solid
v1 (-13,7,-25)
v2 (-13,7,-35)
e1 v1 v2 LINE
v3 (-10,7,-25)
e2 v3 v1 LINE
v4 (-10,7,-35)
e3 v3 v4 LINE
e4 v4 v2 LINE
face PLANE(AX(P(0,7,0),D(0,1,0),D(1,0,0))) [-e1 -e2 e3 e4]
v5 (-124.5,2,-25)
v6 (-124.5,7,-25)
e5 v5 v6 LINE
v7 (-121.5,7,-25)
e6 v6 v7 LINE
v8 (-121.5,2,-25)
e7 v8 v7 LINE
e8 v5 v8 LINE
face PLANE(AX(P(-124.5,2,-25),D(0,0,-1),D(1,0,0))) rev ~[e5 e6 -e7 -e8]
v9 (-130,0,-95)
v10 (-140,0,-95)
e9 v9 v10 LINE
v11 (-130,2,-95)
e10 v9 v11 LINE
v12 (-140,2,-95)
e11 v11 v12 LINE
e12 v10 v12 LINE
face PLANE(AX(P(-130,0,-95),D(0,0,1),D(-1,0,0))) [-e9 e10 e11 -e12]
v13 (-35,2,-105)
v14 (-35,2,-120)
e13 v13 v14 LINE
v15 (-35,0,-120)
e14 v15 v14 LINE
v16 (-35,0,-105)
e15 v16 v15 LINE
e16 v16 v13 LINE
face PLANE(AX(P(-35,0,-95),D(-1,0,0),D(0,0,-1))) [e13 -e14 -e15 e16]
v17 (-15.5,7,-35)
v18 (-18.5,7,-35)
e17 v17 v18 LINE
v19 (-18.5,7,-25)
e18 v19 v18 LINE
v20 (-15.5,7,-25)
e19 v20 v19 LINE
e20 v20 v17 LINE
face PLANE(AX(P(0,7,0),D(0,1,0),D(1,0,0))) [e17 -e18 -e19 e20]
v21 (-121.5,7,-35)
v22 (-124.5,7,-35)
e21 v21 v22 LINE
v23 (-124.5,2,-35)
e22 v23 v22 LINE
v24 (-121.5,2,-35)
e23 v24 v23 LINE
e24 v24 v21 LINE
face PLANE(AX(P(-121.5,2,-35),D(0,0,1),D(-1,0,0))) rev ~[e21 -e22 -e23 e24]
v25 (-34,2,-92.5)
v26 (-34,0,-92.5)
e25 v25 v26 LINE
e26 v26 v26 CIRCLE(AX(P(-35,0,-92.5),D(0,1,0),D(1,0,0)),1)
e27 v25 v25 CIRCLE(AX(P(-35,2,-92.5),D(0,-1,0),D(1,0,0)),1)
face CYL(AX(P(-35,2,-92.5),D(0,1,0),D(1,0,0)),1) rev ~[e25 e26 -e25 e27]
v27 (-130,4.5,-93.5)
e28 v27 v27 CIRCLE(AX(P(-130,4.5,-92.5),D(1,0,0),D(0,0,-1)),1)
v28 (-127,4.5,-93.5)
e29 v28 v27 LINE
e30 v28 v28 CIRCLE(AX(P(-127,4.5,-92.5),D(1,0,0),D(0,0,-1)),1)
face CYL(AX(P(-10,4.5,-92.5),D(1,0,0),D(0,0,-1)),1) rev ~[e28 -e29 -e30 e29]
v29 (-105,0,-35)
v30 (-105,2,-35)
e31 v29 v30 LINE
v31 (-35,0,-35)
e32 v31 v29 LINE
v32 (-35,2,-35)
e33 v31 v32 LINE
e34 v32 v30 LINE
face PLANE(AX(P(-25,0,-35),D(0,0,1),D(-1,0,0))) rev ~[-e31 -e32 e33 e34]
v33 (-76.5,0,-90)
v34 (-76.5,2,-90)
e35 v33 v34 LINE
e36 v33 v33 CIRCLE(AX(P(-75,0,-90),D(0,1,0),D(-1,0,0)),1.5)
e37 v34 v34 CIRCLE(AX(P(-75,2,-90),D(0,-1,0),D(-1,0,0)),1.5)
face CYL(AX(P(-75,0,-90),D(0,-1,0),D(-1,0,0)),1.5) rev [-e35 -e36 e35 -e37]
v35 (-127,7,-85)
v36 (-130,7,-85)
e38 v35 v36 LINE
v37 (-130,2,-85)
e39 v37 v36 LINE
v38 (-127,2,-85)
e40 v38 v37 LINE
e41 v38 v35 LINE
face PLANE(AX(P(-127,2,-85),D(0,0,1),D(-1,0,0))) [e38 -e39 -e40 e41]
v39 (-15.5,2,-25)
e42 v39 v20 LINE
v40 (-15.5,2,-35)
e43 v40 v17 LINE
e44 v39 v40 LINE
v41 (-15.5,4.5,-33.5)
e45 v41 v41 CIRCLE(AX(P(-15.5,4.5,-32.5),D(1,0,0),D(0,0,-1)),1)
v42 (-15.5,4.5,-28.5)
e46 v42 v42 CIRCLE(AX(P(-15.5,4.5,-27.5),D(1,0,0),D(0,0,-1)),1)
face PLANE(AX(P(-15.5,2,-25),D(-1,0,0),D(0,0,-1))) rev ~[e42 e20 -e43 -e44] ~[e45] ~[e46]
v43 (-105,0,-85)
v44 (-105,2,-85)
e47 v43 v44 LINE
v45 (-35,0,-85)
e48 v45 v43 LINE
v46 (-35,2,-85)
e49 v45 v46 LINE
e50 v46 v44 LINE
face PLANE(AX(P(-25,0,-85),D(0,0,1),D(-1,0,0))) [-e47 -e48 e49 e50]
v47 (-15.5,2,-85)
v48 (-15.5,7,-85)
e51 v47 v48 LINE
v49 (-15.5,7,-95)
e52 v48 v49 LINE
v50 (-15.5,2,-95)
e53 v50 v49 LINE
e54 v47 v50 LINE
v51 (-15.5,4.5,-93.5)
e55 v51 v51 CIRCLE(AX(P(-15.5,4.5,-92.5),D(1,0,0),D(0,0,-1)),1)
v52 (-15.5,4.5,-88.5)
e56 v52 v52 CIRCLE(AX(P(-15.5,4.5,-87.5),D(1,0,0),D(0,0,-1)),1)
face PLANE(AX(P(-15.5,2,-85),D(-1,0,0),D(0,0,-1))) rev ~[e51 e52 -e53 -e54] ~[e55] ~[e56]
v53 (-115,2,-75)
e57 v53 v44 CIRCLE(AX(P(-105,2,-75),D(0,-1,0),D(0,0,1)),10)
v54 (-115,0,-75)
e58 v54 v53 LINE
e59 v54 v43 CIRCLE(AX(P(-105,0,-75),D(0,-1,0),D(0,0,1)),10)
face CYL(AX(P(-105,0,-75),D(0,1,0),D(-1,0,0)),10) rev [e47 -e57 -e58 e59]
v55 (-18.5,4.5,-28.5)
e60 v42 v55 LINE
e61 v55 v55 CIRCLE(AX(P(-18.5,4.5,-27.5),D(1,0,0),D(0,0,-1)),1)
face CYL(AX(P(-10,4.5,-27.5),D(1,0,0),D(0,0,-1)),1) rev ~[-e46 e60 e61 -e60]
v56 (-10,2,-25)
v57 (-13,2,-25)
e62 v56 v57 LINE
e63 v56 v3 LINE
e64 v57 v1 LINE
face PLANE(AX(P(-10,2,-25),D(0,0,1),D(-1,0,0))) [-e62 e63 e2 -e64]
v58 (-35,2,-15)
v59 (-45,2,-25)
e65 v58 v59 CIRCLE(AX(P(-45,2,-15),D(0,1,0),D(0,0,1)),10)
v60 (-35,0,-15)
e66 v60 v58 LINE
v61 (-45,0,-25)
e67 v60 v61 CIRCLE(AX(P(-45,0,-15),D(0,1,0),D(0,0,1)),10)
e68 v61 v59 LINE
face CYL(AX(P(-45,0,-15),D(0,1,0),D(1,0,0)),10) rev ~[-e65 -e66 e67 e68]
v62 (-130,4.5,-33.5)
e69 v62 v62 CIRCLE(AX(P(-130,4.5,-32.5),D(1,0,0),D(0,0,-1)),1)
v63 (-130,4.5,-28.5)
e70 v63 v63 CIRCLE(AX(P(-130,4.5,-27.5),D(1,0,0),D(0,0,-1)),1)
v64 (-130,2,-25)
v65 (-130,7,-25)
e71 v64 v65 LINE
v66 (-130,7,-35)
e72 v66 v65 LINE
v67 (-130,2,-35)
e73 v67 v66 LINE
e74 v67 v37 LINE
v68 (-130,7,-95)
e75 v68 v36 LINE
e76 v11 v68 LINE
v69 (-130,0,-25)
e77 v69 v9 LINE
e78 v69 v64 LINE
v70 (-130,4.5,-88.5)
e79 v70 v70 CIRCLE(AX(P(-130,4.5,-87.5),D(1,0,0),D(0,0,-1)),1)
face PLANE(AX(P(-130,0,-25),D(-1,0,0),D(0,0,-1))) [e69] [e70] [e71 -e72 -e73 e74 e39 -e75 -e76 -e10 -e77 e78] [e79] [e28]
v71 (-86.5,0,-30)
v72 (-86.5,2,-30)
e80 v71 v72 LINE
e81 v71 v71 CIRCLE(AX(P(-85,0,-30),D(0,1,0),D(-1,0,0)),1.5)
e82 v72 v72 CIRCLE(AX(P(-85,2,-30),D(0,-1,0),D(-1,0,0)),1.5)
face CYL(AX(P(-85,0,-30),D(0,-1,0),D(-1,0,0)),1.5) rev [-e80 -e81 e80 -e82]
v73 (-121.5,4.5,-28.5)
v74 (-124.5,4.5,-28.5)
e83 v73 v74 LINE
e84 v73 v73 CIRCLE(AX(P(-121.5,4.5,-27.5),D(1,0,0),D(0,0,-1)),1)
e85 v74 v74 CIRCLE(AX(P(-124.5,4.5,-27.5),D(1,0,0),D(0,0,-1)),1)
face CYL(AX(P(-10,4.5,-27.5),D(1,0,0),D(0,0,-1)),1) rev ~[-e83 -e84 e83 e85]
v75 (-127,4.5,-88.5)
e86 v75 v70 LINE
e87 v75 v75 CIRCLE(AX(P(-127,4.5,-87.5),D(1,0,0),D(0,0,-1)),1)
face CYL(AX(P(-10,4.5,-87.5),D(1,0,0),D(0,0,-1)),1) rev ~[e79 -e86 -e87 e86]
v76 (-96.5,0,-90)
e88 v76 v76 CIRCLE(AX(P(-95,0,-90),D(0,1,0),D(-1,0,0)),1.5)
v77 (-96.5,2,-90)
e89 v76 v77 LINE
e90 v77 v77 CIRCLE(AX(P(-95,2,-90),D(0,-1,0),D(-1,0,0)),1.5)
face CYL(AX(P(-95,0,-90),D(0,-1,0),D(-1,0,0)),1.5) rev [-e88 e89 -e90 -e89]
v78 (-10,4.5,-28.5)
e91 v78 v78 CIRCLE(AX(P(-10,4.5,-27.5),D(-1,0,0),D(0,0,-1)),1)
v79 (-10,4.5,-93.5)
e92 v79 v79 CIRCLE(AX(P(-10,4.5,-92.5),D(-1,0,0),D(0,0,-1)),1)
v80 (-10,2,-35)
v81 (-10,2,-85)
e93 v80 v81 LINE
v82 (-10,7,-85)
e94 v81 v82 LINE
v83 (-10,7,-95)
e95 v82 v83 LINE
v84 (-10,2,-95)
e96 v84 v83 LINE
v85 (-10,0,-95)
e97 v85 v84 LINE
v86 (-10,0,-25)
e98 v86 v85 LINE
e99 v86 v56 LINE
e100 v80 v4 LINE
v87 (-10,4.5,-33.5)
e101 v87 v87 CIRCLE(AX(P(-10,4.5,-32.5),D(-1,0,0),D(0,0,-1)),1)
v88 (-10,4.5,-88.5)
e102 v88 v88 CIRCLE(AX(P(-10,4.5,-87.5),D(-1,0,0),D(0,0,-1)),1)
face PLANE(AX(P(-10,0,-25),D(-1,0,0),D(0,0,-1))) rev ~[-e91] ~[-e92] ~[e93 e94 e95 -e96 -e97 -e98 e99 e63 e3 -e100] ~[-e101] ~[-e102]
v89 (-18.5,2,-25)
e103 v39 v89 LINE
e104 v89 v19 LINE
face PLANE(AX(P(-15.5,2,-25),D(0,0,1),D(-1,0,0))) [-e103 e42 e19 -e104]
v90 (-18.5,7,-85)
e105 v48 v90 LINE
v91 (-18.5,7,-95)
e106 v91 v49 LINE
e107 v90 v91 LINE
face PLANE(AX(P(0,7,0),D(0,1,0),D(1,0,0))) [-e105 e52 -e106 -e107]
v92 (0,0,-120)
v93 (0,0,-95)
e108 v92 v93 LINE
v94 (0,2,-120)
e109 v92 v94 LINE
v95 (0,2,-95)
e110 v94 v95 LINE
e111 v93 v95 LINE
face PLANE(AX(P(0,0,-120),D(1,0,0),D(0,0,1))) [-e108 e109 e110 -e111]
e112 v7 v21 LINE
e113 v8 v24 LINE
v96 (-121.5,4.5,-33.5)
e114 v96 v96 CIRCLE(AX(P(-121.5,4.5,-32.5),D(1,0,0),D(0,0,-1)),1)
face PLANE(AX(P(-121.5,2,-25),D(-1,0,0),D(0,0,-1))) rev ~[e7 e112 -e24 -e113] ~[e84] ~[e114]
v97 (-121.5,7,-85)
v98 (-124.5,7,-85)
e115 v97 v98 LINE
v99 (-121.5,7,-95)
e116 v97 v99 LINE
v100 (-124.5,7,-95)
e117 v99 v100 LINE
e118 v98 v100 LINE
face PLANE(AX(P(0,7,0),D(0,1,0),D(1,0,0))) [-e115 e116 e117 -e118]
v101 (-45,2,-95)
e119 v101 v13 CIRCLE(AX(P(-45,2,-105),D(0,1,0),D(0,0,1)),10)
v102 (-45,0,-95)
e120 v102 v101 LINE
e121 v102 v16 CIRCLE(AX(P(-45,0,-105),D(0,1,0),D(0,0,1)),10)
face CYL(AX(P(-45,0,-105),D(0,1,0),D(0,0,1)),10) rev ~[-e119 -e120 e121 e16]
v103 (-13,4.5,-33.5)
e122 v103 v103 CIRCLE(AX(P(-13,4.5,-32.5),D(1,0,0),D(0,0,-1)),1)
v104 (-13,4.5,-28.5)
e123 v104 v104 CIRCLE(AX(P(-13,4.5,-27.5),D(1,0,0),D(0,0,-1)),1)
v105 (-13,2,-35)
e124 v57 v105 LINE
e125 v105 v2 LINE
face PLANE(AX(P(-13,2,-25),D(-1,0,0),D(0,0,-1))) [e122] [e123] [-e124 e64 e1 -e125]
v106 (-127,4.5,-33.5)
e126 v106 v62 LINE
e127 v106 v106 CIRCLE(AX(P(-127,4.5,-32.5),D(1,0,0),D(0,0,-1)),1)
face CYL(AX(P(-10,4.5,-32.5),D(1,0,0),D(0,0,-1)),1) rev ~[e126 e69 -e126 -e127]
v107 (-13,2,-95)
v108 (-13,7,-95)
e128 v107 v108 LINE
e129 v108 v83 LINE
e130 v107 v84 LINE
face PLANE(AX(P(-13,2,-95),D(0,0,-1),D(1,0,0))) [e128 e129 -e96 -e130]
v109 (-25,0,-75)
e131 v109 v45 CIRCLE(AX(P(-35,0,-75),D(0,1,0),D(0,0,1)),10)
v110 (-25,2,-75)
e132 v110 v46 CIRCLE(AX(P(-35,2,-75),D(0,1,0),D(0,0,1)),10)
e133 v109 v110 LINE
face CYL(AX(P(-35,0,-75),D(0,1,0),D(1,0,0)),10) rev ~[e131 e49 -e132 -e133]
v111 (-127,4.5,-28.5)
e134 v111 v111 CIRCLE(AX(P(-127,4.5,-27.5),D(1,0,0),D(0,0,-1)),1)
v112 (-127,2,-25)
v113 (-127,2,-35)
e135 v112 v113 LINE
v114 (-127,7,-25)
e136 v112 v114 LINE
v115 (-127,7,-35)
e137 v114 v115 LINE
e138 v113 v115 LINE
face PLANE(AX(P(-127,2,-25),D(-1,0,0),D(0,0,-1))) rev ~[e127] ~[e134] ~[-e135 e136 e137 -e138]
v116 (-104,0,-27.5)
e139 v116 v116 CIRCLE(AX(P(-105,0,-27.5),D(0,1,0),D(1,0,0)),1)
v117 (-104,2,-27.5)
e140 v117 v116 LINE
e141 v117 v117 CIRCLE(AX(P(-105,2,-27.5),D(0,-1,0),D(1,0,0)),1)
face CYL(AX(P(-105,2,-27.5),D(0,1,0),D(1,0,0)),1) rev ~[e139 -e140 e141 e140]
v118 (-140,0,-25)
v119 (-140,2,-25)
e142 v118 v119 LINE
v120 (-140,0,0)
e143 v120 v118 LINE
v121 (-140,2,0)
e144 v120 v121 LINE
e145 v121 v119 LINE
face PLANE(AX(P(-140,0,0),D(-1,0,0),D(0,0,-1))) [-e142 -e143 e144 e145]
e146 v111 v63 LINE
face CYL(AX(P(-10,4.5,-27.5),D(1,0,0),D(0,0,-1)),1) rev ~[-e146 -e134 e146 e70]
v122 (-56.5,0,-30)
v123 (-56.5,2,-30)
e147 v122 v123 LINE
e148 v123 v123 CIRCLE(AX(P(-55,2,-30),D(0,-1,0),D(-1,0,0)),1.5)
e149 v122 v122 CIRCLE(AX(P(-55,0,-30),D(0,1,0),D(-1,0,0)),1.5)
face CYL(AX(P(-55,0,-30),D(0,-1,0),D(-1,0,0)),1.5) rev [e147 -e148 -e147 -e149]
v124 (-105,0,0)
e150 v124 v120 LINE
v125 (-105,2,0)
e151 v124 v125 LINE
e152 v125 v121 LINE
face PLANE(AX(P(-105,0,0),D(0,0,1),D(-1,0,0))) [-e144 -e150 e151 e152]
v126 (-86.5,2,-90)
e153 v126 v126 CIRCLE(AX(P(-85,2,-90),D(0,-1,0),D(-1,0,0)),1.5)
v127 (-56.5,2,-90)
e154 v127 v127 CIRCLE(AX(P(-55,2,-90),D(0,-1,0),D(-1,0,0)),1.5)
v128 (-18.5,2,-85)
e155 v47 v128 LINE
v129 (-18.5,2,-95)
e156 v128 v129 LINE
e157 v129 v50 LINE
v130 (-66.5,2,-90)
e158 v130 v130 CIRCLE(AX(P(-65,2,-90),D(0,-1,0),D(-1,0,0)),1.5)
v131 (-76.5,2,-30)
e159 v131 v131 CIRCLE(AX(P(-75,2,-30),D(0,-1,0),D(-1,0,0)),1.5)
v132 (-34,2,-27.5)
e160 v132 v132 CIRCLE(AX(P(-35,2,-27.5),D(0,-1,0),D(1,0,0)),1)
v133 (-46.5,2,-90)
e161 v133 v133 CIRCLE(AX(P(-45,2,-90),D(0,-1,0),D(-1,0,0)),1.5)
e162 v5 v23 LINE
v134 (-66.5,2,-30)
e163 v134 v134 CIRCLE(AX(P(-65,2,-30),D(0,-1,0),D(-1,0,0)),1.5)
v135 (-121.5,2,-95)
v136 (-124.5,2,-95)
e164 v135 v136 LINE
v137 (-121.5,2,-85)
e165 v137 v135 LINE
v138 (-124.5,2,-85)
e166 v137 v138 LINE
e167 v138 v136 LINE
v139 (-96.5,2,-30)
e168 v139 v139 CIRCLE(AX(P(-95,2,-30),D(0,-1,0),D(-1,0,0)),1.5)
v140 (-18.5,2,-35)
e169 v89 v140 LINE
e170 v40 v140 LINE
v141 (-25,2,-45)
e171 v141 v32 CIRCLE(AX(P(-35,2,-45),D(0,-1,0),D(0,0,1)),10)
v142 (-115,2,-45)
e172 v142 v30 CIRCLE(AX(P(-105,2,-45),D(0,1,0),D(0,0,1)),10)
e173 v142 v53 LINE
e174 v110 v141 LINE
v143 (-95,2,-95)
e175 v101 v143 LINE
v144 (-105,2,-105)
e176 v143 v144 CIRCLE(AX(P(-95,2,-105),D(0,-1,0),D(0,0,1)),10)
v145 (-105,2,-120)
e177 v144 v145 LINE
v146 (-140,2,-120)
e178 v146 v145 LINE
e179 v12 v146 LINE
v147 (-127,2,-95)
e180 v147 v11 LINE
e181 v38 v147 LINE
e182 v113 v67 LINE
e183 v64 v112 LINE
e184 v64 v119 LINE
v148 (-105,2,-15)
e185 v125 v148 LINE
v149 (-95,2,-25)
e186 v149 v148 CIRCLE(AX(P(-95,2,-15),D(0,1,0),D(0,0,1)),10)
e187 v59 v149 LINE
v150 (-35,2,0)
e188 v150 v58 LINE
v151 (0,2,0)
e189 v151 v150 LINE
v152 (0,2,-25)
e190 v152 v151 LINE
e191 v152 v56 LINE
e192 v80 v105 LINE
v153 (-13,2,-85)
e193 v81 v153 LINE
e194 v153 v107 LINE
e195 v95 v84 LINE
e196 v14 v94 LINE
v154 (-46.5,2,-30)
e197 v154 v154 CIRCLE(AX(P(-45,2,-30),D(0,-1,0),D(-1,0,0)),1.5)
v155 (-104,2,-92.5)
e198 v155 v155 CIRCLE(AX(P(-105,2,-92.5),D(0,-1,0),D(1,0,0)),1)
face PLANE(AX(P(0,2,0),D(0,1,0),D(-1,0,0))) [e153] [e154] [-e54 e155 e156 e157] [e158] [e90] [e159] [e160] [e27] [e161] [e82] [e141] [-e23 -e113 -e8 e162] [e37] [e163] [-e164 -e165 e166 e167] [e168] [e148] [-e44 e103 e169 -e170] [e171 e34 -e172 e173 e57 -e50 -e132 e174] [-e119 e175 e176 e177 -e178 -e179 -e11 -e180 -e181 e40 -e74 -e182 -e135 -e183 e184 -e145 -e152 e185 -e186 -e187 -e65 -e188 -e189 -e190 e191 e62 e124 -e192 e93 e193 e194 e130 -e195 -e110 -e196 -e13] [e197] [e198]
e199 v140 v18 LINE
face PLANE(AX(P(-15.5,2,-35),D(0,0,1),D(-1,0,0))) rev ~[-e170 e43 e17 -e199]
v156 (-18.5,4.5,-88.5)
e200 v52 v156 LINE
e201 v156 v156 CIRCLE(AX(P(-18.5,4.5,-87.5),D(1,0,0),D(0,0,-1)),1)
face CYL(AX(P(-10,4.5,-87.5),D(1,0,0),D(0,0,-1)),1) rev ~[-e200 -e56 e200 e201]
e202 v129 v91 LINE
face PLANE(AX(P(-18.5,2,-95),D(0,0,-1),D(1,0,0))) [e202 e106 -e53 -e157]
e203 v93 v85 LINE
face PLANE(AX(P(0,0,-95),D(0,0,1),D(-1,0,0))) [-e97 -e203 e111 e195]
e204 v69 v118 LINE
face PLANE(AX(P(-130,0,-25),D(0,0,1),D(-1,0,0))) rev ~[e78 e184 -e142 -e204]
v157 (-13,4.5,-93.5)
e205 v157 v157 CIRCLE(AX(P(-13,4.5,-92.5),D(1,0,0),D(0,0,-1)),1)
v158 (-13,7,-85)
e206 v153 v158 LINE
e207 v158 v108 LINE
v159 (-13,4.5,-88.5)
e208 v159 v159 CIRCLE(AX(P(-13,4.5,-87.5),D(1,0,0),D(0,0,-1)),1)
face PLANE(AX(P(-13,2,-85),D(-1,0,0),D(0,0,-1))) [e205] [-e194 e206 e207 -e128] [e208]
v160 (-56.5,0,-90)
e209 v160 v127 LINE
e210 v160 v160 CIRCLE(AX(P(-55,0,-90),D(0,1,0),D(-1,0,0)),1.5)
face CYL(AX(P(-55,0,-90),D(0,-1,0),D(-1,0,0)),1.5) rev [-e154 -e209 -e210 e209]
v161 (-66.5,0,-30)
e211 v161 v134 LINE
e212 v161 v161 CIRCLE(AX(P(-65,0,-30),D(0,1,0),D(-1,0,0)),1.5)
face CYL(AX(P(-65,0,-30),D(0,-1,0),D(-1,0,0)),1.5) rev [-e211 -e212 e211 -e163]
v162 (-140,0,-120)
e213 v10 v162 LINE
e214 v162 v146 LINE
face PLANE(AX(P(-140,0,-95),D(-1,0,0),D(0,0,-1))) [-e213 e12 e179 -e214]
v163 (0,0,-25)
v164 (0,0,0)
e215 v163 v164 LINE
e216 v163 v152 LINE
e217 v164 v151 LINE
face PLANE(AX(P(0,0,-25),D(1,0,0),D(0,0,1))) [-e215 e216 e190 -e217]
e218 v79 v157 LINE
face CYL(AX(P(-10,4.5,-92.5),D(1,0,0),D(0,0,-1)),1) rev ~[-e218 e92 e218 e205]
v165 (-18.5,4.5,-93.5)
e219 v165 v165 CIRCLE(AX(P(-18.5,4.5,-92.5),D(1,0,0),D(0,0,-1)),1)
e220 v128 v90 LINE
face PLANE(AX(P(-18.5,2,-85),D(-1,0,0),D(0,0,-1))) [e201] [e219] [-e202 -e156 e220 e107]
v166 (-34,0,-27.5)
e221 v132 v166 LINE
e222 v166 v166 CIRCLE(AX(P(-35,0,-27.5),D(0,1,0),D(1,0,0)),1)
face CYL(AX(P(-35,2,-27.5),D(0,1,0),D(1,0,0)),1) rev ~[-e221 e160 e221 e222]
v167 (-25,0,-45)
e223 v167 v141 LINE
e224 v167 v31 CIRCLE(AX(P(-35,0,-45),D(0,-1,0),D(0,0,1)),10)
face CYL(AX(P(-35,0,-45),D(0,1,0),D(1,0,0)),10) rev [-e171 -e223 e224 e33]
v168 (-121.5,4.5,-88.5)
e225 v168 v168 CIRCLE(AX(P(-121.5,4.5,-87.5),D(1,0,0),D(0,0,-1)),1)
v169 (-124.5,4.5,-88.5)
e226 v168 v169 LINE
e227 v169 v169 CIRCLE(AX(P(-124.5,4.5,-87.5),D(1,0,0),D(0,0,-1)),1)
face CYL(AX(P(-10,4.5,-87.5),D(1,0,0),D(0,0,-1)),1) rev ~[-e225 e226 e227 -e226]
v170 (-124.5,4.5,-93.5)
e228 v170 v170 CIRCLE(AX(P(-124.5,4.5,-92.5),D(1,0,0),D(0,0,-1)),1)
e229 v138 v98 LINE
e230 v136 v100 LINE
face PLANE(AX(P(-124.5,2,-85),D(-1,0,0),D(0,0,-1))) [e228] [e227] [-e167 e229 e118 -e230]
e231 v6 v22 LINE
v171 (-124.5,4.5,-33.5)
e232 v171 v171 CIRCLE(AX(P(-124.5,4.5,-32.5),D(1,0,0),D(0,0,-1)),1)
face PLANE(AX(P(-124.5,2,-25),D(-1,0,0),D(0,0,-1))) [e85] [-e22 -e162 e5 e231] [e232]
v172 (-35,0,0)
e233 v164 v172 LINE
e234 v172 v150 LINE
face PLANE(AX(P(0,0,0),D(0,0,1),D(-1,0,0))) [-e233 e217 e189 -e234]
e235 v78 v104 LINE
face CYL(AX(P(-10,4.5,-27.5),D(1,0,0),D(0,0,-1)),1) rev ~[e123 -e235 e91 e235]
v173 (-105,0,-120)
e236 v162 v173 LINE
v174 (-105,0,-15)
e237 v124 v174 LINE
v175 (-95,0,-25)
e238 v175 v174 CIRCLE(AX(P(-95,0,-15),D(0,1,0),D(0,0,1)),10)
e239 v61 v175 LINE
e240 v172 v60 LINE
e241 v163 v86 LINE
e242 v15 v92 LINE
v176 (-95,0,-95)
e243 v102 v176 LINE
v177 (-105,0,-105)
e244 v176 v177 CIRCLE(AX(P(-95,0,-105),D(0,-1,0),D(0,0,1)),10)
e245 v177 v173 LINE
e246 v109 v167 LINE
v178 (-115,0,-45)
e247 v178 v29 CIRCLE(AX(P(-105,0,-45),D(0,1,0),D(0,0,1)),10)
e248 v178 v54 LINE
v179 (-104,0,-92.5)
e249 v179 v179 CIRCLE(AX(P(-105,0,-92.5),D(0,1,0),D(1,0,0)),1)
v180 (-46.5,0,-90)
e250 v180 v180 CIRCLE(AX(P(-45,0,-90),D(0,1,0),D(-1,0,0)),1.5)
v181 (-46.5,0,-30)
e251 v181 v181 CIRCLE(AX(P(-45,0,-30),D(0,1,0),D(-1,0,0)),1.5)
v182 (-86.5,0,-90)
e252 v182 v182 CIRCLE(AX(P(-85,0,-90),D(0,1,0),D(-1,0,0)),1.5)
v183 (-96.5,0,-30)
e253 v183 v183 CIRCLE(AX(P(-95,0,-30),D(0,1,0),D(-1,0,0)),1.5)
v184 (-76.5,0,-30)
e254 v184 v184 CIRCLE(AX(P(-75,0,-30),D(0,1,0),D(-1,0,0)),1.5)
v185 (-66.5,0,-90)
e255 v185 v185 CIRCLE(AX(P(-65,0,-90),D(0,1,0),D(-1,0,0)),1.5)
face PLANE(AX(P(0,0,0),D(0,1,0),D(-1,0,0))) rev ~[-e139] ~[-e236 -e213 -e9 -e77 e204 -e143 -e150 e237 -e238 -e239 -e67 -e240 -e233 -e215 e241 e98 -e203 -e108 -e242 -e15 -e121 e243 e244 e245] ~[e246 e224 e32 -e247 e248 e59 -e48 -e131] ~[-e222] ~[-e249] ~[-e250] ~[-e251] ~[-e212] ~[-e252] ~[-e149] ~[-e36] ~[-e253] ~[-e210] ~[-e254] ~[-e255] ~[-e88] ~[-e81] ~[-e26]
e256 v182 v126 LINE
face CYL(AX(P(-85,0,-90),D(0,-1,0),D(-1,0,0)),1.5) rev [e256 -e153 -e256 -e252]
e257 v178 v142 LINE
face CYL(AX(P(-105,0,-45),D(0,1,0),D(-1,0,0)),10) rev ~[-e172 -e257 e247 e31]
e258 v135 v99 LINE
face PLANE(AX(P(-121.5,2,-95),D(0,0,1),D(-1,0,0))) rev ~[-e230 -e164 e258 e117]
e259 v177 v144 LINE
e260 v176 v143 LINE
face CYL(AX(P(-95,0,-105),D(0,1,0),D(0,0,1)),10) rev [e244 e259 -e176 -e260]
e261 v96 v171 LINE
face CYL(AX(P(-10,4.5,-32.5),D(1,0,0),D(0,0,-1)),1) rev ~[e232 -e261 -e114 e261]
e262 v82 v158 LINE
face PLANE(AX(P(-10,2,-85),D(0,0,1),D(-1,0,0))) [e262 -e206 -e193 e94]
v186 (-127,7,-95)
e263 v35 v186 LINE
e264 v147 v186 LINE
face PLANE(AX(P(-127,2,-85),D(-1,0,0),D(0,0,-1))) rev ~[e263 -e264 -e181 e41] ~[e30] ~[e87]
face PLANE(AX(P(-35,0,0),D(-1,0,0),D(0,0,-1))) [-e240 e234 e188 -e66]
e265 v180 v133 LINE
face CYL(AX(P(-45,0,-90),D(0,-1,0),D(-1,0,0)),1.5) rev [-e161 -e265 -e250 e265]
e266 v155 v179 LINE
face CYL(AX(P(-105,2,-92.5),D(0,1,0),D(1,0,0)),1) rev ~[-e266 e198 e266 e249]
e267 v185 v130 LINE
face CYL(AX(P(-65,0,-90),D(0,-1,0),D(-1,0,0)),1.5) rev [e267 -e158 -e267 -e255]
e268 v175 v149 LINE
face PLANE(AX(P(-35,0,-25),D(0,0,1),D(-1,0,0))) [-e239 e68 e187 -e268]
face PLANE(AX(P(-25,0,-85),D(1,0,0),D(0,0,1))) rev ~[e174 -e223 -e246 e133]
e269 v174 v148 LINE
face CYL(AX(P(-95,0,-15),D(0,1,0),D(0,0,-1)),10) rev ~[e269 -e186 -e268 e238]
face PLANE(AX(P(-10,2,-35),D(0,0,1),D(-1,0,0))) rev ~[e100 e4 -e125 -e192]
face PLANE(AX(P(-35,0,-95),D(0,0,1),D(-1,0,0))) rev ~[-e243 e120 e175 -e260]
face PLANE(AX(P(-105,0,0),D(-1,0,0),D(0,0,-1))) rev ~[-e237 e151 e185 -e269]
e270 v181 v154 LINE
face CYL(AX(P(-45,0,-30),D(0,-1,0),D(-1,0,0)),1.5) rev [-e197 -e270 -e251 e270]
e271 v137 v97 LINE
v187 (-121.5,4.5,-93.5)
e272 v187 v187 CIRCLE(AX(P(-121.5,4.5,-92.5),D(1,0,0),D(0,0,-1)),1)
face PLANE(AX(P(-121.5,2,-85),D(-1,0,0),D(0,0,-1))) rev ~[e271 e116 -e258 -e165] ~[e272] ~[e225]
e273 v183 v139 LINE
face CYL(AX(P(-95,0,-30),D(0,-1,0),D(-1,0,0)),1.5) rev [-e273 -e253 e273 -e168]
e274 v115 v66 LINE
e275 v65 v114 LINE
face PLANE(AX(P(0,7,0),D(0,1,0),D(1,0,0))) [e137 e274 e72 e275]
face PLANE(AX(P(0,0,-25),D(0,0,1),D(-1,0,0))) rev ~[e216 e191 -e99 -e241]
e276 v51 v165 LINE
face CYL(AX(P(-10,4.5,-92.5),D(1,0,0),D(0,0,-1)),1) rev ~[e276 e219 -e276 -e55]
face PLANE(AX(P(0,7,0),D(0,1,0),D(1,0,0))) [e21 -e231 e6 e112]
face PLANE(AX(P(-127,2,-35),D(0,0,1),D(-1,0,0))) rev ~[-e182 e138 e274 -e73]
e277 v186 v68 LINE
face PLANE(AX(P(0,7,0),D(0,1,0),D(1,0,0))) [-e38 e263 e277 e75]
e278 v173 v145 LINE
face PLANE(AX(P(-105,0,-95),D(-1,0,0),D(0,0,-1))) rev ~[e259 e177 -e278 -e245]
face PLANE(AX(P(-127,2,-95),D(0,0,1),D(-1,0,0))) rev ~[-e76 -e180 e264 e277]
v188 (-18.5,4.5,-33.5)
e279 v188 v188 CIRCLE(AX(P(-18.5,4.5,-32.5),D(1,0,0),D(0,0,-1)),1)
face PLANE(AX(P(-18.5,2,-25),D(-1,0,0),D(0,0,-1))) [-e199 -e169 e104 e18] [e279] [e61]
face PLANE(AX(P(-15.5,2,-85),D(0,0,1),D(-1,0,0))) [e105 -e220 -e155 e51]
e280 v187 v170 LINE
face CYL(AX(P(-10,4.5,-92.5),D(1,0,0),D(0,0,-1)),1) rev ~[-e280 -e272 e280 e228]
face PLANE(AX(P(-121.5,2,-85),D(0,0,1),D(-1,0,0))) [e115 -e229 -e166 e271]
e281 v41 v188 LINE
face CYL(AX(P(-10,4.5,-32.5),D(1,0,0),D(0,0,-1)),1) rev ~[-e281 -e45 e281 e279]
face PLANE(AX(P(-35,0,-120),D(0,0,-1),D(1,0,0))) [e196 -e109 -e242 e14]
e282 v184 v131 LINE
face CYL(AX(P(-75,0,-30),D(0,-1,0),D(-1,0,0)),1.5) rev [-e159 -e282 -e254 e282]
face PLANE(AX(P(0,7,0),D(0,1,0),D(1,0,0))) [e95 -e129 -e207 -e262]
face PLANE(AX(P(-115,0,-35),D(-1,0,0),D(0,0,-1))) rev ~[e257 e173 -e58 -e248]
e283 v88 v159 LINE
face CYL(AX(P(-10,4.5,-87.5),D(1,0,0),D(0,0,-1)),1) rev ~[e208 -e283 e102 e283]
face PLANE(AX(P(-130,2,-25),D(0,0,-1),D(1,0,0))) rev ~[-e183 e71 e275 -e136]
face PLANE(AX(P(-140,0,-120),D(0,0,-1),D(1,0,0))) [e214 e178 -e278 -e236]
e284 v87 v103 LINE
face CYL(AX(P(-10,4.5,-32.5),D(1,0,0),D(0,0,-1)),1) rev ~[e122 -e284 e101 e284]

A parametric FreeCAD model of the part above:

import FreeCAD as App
import Part
import Sketcher
from FreeCAD import Vector


def edges_at(feature, points):
    """Names of the edges that pass closest to the given points."""
    edges = feature.Shape.Edges
    near = lambda p: min(range(len(edges)), key=lambda i: edges[i].distToShape(Part.Vertex(*p))[0])
    return sorted({f"Edge{near(p) + 1}" for p in points})

doc = App.newDocument("Part")
body = doc.addObject("PartDesign::Body", "Body")

# Sketch on XZ plane
sketch1 = body.newObject("Sketcher::SketchObject", "Sketch")
sketch1.AttachmentSupport = (doc.getObject("XZ_Plane"), [""])
sketch1.MapMode = "FlatFace"
sketch1.addGeometry(Part.LineSegment(Vector(-35, 0, 0), Vector(0, 0, 0)), False)
sketch1.addGeometry(Part.LineSegment(Vector(0, 0, 0), Vector(0, -25, 0)), False)
sketch1.addGeometry(Part.LineSegment(Vector(0, -25, 0), Vector(-10, -25, 0)), False)
sketch1.addGeometry(Part.LineSegment(Vector(-10, -25, 0), Vector(-10, -95, 0)), False)
sketch1.addGeometry(Part.LineSegment(Vector(-10, -95, 0), Vector(0, -95, 0)), False)
sketch1.addGeometry(Part.LineSegment(Vector(0, -95, 0), Vector(0, -120, 0)), False)
sketch1.addGeometry(Part.LineSegment(Vector(0, -120, 0), Vector(-35, -120, 0)), False)
sketch1.addGeometry(Part.LineSegment(Vector(-35, -120, 0), Vector(-35, -95, 0)), False)
sketch1.addGeometry(Part.LineSegment(Vector(-35, -95, 0), Vector(-105, -95, 0)), False)
sketch1.addGeometry(Part.LineSegment(Vector(-105, -95, 0), Vector(-105, -120, 0)), False)
sketch1.addGeometry(Part.LineSegment(Vector(-105, -120, 0), Vector(-140, -120, 0)), False)
sketch1.addGeometry(Part.LineSegment(Vector(-140, -120, 0), Vector(-140, -95, 0)), False)
sketch1.addGeometry(Part.LineSegment(Vector(-140, -95, 0), Vector(-130, -95, 0)), False)
sketch1.addGeometry(Part.LineSegment(Vector(-130, -95, 0), Vector(-130, -25, 0)), False)
sketch1.addGeometry(Part.LineSegment(Vector(-130, -25, 0), Vector(-140, -25, 0)), False)
sketch1.addGeometry(Part.LineSegment(Vector(-140, -25, 0), Vector(-140, 0, 0)), False)
sketch1.addGeometry(Part.LineSegment(Vector(-140, 0, 0), Vector(-105, 0, 0)), False)
sketch1.addGeometry(Part.LineSegment(Vector(-105, 0, 0), Vector(-105, -25, 0)), False)
sketch1.addGeometry(Part.LineSegment(Vector(-105, -25, 0), Vector(-35, -25, 0)), False)
sketch1.addGeometry(Part.LineSegment(Vector(-35, -25, 0), Vector(-35, 0, 0)), False)
sketch1.addGeometry(Part.Circle(Vector(-95, -30, 0), Vector(0, 0, 1), 1.5), False)
sketch1.addGeometry(Part.Circle(Vector(-85, -30, 0), Vector(0, 0, 1), 1.5), False)
sketch1.addGeometry(Part.Circle(Vector(-75, -30, 0), Vector(0, 0, 1), 1.5), False)
sketch1.addGeometry(Part.Circle(Vector(-65, -30, 0), Vector(0, 0, 1), 1.5), False)
sketch1.addGeometry(Part.Circle(Vector(-55, -30, 0), Vector(0, 0, 1), 1.5), False)
sketch1.addGeometry(Part.Circle(Vector(-45, -30, 0), Vector(0, 0, 1), 1.5), False)
sketch1.addGeometry(Part.LineSegment(Vector(-25, -85, 0), Vector(-25, -35, 0)), False)
sketch1.addGeometry(Part.LineSegment(Vector(-25, -35, 0), Vector(-115, -35, 0)), False)
sketch1.addGeometry(Part.LineSegment(Vector(-115, -35, 0), Vector(-115, -85, 0)), False)
sketch1.addGeometry(Part.LineSegment(Vector(-115, -85, 0), Vector(-25, -85, 0)), False)
sketch1.addGeometry(Part.Circle(Vector(-95, -90, 0), Vector(0, 0, 1), 1.5), False)
sketch1.addGeometry(Part.Circle(Vector(-85, -90, 0), Vector(0, 0, 1), 1.5), False)
sketch1.addGeometry(Part.Circle(Vector(-75, -90, 0), Vector(0, 0, 1), 1.5), False)
sketch1.addGeometry(Part.Circle(Vector(-65, -90, 0), Vector(0, 0, 1), 1.5), False)
sketch1.addGeometry(Part.Circle(Vector(-55, -90, 0), Vector(0, 0, 1), 1.5), False)
sketch1.addGeometry(Part.Circle(Vector(-45, -90, 0), Vector(0, 0, 1), 1.5), False)
sketch1.addConstraint(Sketcher.Constraint("Coincident", 0, 2, 1, 1))
sketch1.addConstraint(Sketcher.Constraint("Coincident", 1, 2, 2, 1))
sketch1.addConstraint(Sketcher.Constraint("Coincident", 2, 2, 3, 1))
sketch1.addConstraint(Sketcher.Constraint("Coincident", 3, 2, 4, 1))
sketch1.addConstraint(Sketcher.Constraint("Coincident", 4, 2, 5, 1))
sketch1.addConstraint(Sketcher.Constraint("Coincident", 5, 2, 6, 1))
sketch1.addConstraint(Sketcher.Constraint("Coincident", 6, 2, 7, 1))
sketch1.addConstraint(Sketcher.Constraint("Coincident", 7, 2, 8, 1))
sketch1.addConstraint(Sketcher.Constraint("Coincident", 8, 2, 9, 1))
sketch1.addConstraint(Sketcher.Constraint("Coincident", 9, 2, 10, 1))
sketch1.addConstraint(Sketcher.Constraint("Coincident", 10, 2, 11, 1))
sketch1.addConstraint(Sketcher.Constraint("Coincident", 11, 2, 12, 1))
sketch1.addConstraint(Sketcher.Constraint("Coincident", 12, 2, 13, 1))
sketch1.addConstraint(Sketcher.Constraint("Coincident", 13, 2, 14, 1))
sketch1.addConstraint(Sketcher.Constraint("Coincident", 14, 2, 15, 1))
sketch1.addConstraint(Sketcher.Constraint("Coincident", 15, 2, 16, 1))
sketch1.addConstraint(Sketcher.Constraint("Coincident", 16, 2, 17, 1))
sketch1.addConstraint(Sketcher.Constraint("Coincident", 17, 2, 18, 1))
sketch1.addConstraint(Sketcher.Constraint("Coincident", 18, 2, 19, 1))
sketch1.addConstraint(Sketcher.Constraint("Coincident", 19, 2, 0, 1))
sketch1.addConstraint(Sketcher.Constraint("Coincident", 26, 2, 27, 1))
sketch1.addConstraint(Sketcher.Constraint("Coincident", 27, 2, 28, 1))
sketch1.addConstraint(Sketcher.Constraint("Coincident", 28, 2, 29, 1))
sketch1.addConstraint(Sketcher.Constraint("Coincident", 29, 2, 26, 1))
sketch1.addConstraint(Sketcher.Constraint("Horizontal", 0))
sketch1.addConstraint(Sketcher.Constraint("Vertical", 1))
sketch1.addConstraint(Sketcher.Constraint("Horizontal", 2))
sketch1.addConstraint(Sketcher.Constraint("Vertical", 3))
sketch1.addConstraint(Sketcher.Constraint("Horizontal", 4))
sketch1.addConstraint(Sketcher.Constraint("Vertical", 5))
sketch1.addConstraint(Sketcher.Constraint("Horizontal", 6))
sketch1.addConstraint(Sketcher.Constraint("Vertical", 7))
sketch1.addConstraint(Sketcher.Constraint("Horizontal", 8))
sketch1.addConstraint(Sketcher.Constraint("Vertical", 9))
sketch1.addConstraint(Sketcher.Constraint("Horizontal", 10))
sketch1.addConstraint(Sketcher.Constraint("Vertical", 11))
sketch1.addConstraint(Sketcher.Constraint("Horizontal", 12))
sketch1.addConstraint(Sketcher.Constraint("Vertical", 13))
sketch1.addConstraint(Sketcher.Constraint("Horizontal", 14))
sketch1.addConstraint(Sketcher.Constraint("Vertical", 15))
sketch1.addConstraint(Sketcher.Constraint("Horizontal", 16))
sketch1.addConstraint(Sketcher.Constraint("Vertical", 17))
sketch1.addConstraint(Sketcher.Constraint("Horizontal", 18))
sketch1.addConstraint(Sketcher.Constraint("Vertical", 19))
sketch1.addConstraint(Sketcher.Constraint("Vertical", 26))
sketch1.addConstraint(Sketcher.Constraint("Horizontal", 27))
sketch1.addConstraint(Sketcher.Constraint("Vertical", 28))
sketch1.addConstraint(Sketcher.Constraint("Horizontal", 29))
sketch1.addConstraint(Sketcher.Constraint("Coincident", 0, 2, -1, 1))
sketch1.addConstraint(Sketcher.Constraint("Equal", 20, 21))
sketch1.addConstraint(Sketcher.Constraint("Equal", 21, 22))
sketch1.addConstraint(Sketcher.Constraint("Equal", 22, 23))
sketch1.addConstraint(Sketcher.Constraint("Equal", 23, 24))
sketch1.addConstraint(Sketcher.Constraint("Equal", 24, 25))
sketch1.addConstraint(Sketcher.Constraint("Equal", 25, 30))
sketch1.addConstraint(Sketcher.Constraint("Equal", 30, 31))
sketch1.addConstraint(Sketcher.Constraint("Equal", 31, 32))
sketch1.addConstraint(Sketcher.Constraint("Equal", 32, 33))
sketch1.addConstraint(Sketcher.Constraint("Equal", 33, 34))
sketch1.addConstraint(Sketcher.Constraint("Equal", 34, 35))
sketch1.addConstraint(Sketcher.Constraint("PointOnObject", 4, 2, -2))
sketch1.addConstraint(Sketcher.Constraint("PointOnObject", 15, 2, -1))
sketch1.addConstraint(Sketcher.Constraint("Horizontal", 20, 3, 21, 3))
sketch1.addConstraint(Sketcher.Constraint("Horizontal", 21, 3, 22, 3))
sketch1.addConstraint(Sketcher.Constraint("Horizontal", 22, 3, 23, 3))
sketch1.addConstraint(Sketcher.Constraint("Horizontal", 23, 3, 24, 3))
sketch1.addConstraint(Sketcher.Constraint("Horizontal", 24, 3, 25, 3))
sketch1.addConstraint(Sketcher.Constraint("Horizontal", 30, 3, 31, 3))
sketch1.addConstraint(Sketcher.Constraint("Horizontal", 31, 3, 32, 3))
sketch1.addConstraint(Sketcher.Constraint("Horizontal", 32, 3, 33, 3))
sketch1.addConstraint(Sketcher.Constraint("Horizontal", 33, 3, 34, 3))
sketch1.addConstraint(Sketcher.Constraint("Horizontal", 34, 3, 35, 3))
sketch1.addConstraint(Sketcher.Constraint("Horizontal", 4, 2, 7, 2))
sketch1.addConstraint(Sketcher.Constraint("Horizontal", 6, 2, 9, 2))
sketch1.addConstraint(Sketcher.Constraint("Horizontal", 8, 2, 11, 2))
sketch1.addConstraint(Sketcher.Constraint("Horizontal", 2, 2, 13, 2))
sketch1.addConstraint(Sketcher.Constraint("Horizontal", 14, 2, 17, 2))
sketch1.addConstraint(Sketcher.Constraint("Vertical", 20, 3, 30, 3))
sketch1.addConstraint(Sketcher.Constraint("Vertical", 21, 3, 31, 3))
sketch1.addConstraint(Sketcher.Constraint("Vertical", 22, 3, 32, 3))
sketch1.addConstraint(Sketcher.Constraint("Vertical", 23, 3, 33, 3))
sketch1.addConstraint(Sketcher.Constraint("Vertical", 24, 3, 34, 3))
sketch1.addConstraint(Sketcher.Constraint("Vertical", 25, 3, 35, 3))
sketch1.addConstraint(Sketcher.Constraint("Vertical", 11, 2, 14, 2))
sketch1.addConstraint(Sketcher.Constraint("Vertical", 9, 2, 16, 2))
sketch1.addConstraint(Sketcher.Constraint("Vertical", 7, 2, 18, 2))
sketch1.addConstraint(Sketcher.Constraint("Equal", 6, 10))
sketch1.addConstraint(Sketcher.Constraint("Equal", 4, 12))
sketch1.addConstraint(Sketcher.Constraint("Equal", 18, 3))
sketch1.addConstraint(Sketcher.Constraint("Equal", 1, 5))
sketch1.addConstraint(Sketcher.Constraint("Diameter", 20, 3.0))
sketch1.addConstraint(Sketcher.Constraint("DistanceX", 0, 1, 0, 2, 35.0))
sketch1.addConstraint(Sketcher.Constraint("DistanceX", 2, 2, 2, 1, 10.0))
sketch1.addConstraint(Sketcher.Constraint("DistanceY", 1, 2, 1, 1, 25.0))
sketch1.addConstraint(Sketcher.Constraint("DistanceY", 5, 2, -1, 1, 120.0))
sketch1.addConstraint(Sketcher.Constraint("DistanceX", 26, 2, -1, 1, 25.0))
sketch1.addConstraint(Sketcher.Constraint("DistanceY", 26, 2, -1, 1, 35.0))
sketch1.addConstraint(Sketcher.Constraint("DistanceX", 20, 3, 21, 3, 10.0))
sketch1.addConstraint(Sketcher.Constraint("DistanceX", 21, 3, 22, 3, 10.0))
sketch1.addConstraint(Sketcher.Constraint("DistanceX", 22, 3, 23, 3, 10.0))
sketch1.addConstraint(Sketcher.Constraint("DistanceX", 23, 3, 24, 3, 10.0))
sketch1.addConstraint(Sketcher.Constraint("DistanceX", 24, 3, 25, 3, 10.0))
sketch1.addConstraint(Sketcher.Constraint("DistanceX", 25, 3, 2, 2, 35.0))
sketch1.addConstraint(Sketcher.Constraint("DistanceX", 27, 2, 17, 2, 10.0))
sketch1.addConstraint(Sketcher.Constraint("DistanceY", 8, 2, 28, 2, 10.0))
sketch1.addConstraint(Sketcher.Constraint("DistanceY", 20, 3, -1, 1, 30.0))
sketch1.addConstraint(Sketcher.Constraint("DistanceY", 30, 3, -1, 1, 90.0))
pad1 = body.newObject("PartDesign::Pad", "Pad")
pad1.Profile = sketch1
pad1.Length = 2
pad1.Reversed = True
doc.recompute()

fillet = body.newObject("PartDesign::Fillet", "Fillet")
fillet.Base = (pad1, edges_at(pad1, [
    (-105, 1, -25),
    (-115, 1, -85),
    (-25, 1, -85),
    (-25, 1, -35),
    (-115, 1, -35),
    (-35, 1, -95),
    (-105, 1, -95),
    (-35, 1, -25),
]))
fillet.Radius = 10

# Sketch on XZ plane
sketch2 = body.newObject("Sketcher::SketchObject", "Sketch001")
sketch2.AttachmentSupport = (doc.getObject("XZ_Plane"), [""])
sketch2.MapMode = "FlatFace"
sketch2.AttachmentOffset = App.Placement(Vector(0, 0, -2), App.Rotation())
sketch2.addGeometry(Part.LineSegment(Vector(-127, -95, 0), Vector(-130, -95, 0)), False)
sketch2.addGeometry(Part.LineSegment(Vector(-130, -95, 0), Vector(-130, -85, 0)), False)
sketch2.addGeometry(Part.LineSegment(Vector(-130, -85, 0), Vector(-127, -85, 0)), False)
sketch2.addGeometry(Part.LineSegment(Vector(-127, -85, 0), Vector(-127, -95, 0)), False)
sketch2.addGeometry(Part.LineSegment(Vector(-127, -35, 0), Vector(-130, -35, 0)), False)
sketch2.addGeometry(Part.LineSegment(Vector(-130, -35, 0), Vector(-130, -25, 0)), False)
sketch2.addGeometry(Part.LineSegment(Vector(-130, -25, 0), Vector(-127, -25, 0)), False)
sketch2.addGeometry(Part.LineSegment(Vector(-127, -25, 0), Vector(-127, -35, 0)), False)
sketch2.addGeometry(Part.LineSegment(Vector(-121.5, -95, 0), Vector(-124.5, -95, 0)), False)
sketch2.addGeometry(Part.LineSegment(Vector(-124.5, -95, 0), Vector(-124.5, -85, 0)), False)
sketch2.addGeometry(Part.LineSegment(Vector(-124.5, -85, 0), Vector(-121.5, -85, 0)), False)
sketch2.addGeometry(Part.LineSegment(Vector(-121.5, -85, 0), Vector(-121.5, -95, 0)), False)
sketch2.addGeometry(Part.LineSegment(Vector(-121.5, -35, 0), Vector(-124.5, -35, 0)), False)
sketch2.addGeometry(Part.LineSegment(Vector(-124.5, -35, 0), Vector(-124.5, -25, 0)), False)
sketch2.addGeometry(Part.LineSegment(Vector(-124.5, -25, 0), Vector(-121.5, -25, 0)), False)
sketch2.addGeometry(Part.LineSegment(Vector(-121.5, -25, 0), Vector(-121.5, -35, 0)), False)
sketch2.addGeometry(Part.LineSegment(Vector(-13, -25, 0), Vector(-10, -25, 0)), False)
sketch2.addGeometry(Part.LineSegment(Vector(-10, -25, 0), Vector(-10, -35, 0)), False)
sketch2.addGeometry(Part.LineSegment(Vector(-10, -35, 0), Vector(-13, -35, 0)), False)
sketch2.addGeometry(Part.LineSegment(Vector(-13, -35, 0), Vector(-13, -25, 0)), False)
sketch2.addGeometry(Part.LineSegment(Vector(-13, -85, 0), Vector(-10, -85, 0)), False)
sketch2.addGeometry(Part.LineSegment(Vector(-10, -85, 0), Vector(-10, -95, 0)), False)
sketch2.addGeometry(Part.LineSegment(Vector(-10, -95, 0), Vector(-13, -95, 0)), False)
sketch2.addGeometry(Part.LineSegment(Vector(-13, -95, 0), Vector(-13, -85, 0)), False)
sketch2.addGeometry(Part.LineSegment(Vector(-18.5, -25, 0), Vector(-15.5, -25, 0)), False)
sketch2.addGeometry(Part.LineSegment(Vector(-15.5, -25, 0), Vector(-15.5, -35, 0)), False)
sketch2.addGeometry(Part.LineSegment(Vector(-15.5, -35, 0), Vector(-18.5, -35, 0)), False)
sketch2.addGeometry(Part.LineSegment(Vector(-18.5, -35, 0), Vector(-18.5, -25, 0)), False)
sketch2.addGeometry(Part.LineSegment(Vector(-18.5, -85, 0), Vector(-15.5, -85, 0)), False)
sketch2.addGeometry(Part.LineSegment(Vector(-15.5, -85, 0), Vector(-15.5, -95, 0)), False)
sketch2.addGeometry(Part.LineSegment(Vector(-15.5, -95, 0), Vector(-18.5, -95, 0)), False)
sketch2.addGeometry(Part.LineSegment(Vector(-18.5, -95, 0), Vector(-18.5, -85, 0)), False)
sketch2.addConstraint(Sketcher.Constraint("Coincident", 0, 2, 1, 1))
sketch2.addConstraint(Sketcher.Constraint("Coincident", 1, 2, 2, 1))
sketch2.addConstraint(Sketcher.Constraint("Coincident", 2, 2, 3, 1))
sketch2.addConstraint(Sketcher.Constraint("Coincident", 3, 2, 0, 1))
sketch2.addConstraint(Sketcher.Constraint("Coincident", 4, 2, 5, 1))
sketch2.addConstraint(Sketcher.Constraint("Coincident", 5, 2, 6, 1))
sketch2.addConstraint(Sketcher.Constraint("Coincident", 6, 2, 7, 1))
sketch2.addConstraint(Sketcher.Constraint("Coincident", 7, 2, 4, 1))
sketch2.addConstraint(Sketcher.Constraint("Coincident", 8, 2, 9, 1))
sketch2.addConstraint(Sketcher.Constraint("Coincident", 9, 2, 10, 1))
sketch2.addConstraint(Sketcher.Constraint("Coincident", 10, 2, 11, 1))
sketch2.addConstraint(Sketcher.Constraint("Coincident", 11, 2, 8, 1))
sketch2.addConstraint(Sketcher.Constraint("Coincident", 12, 2, 13, 1))
sketch2.addConstraint(Sketcher.Constraint("Coincident", 13, 2, 14, 1))
sketch2.addConstraint(Sketcher.Constraint("Coincident", 14, 2, 15, 1))
sketch2.addConstraint(Sketcher.Constraint("Coincident", 15, 2, 12, 1))
sketch2.addConstraint(Sketcher.Constraint("Coincident", 16, 2, 17, 1))
sketch2.addConstraint(Sketcher.Constraint("Coincident", 17, 2, 18, 1))
sketch2.addConstraint(Sketcher.Constraint("Coincident", 18, 2, 19, 1))
sketch2.addConstraint(Sketcher.Constraint("Coincident", 19, 2, 16, 1))
sketch2.addConstraint(Sketcher.Constraint("Coincident", 20, 2, 21, 1))
sketch2.addConstraint(Sketcher.Constraint("Coincident", 21, 2, 22, 1))
sketch2.addConstraint(Sketcher.Constraint("Coincident", 22, 2, 23, 1))
sketch2.addConstraint(Sketcher.Constraint("Coincident", 23, 2, 20, 1))
sketch2.addConstraint(Sketcher.Constraint("Coincident", 24, 2, 25, 1))
sketch2.addConstraint(Sketcher.Constraint("Coincident", 25, 2, 26, 1))
sketch2.addConstraint(Sketcher.Constraint("Coincident", 26, 2, 27, 1))
sketch2.addConstraint(Sketcher.Constraint("Coincident", 27, 2, 24, 1))
sketch2.addConstraint(Sketcher.Constraint("Coincident", 28, 2, 29, 1))
sketch2.addConstraint(Sketcher.Constraint("Coincident", 29, 2, 30, 1))
sketch2.addConstraint(Sketcher.Constraint("Coincident", 30, 2, 31, 1))
sketch2.addConstraint(Sketcher.Constraint("Coincident", 31, 2, 28, 1))
sketch2.addConstraint(Sketcher.Constraint("Horizontal", 0))
sketch2.addConstraint(Sketcher.Constraint("Vertical", 1))
sketch2.addConstraint(Sketcher.Constraint("Horizontal", 2))
sketch2.addConstraint(Sketcher.Constraint("Vertical", 3))
sketch2.addConstraint(Sketcher.Constraint("Horizontal", 4))
sketch2.addConstraint(Sketcher.Constraint("Vertical", 5))
sketch2.addConstraint(Sketcher.Constraint("Horizontal", 6))
sketch2.addConstraint(Sketcher.Constraint("Vertical", 7))
sketch2.addConstraint(Sketcher.Constraint("Horizontal", 8))
sketch2.addConstraint(Sketcher.Constraint("Vertical", 9))
sketch2.addConstraint(Sketcher.Constraint("Horizontal", 10))
sketch2.addConstraint(Sketcher.Constraint("Vertical", 11))
sketch2.addConstraint(Sketcher.Constraint("Horizontal", 12))
sketch2.addConstraint(Sketcher.Constraint("Vertical", 13))
sketch2.addConstraint(Sketcher.Constraint("Horizontal", 14))
sketch2.addConstraint(Sketcher.Constraint("Vertical", 15))
sketch2.addConstraint(Sketcher.Constraint("Horizontal", 16))
sketch2.addConstraint(Sketcher.Constraint("Vertical", 17))
sketch2.addConstraint(Sketcher.Constraint("Horizontal", 18))
sketch2.addConstraint(Sketcher.Constraint("Vertical", 19))
sketch2.addConstraint(Sketcher.Constraint("Horizontal", 20))
sketch2.addConstraint(Sketcher.Constraint("Vertical", 21))
sketch2.addConstraint(Sketcher.Constraint("Horizontal", 22))
sketch2.addConstraint(Sketcher.Constraint("Vertical", 23))
sketch2.addConstraint(Sketcher.Constraint("Horizontal", 24))
sketch2.addConstraint(Sketcher.Constraint("Vertical", 25))
sketch2.addConstraint(Sketcher.Constraint("Horizontal", 26))
sketch2.addConstraint(Sketcher.Constraint("Vertical", 27))
sketch2.addConstraint(Sketcher.Constraint("Horizontal", 28))
sketch2.addConstraint(Sketcher.Constraint("Vertical", 29))
sketch2.addConstraint(Sketcher.Constraint("Horizontal", 30))
sketch2.addConstraint(Sketcher.Constraint("Vertical", 31))
sketch2.addConstraint(Sketcher.Constraint("Horizontal", 3, 2, 8, 2))
sketch2.addConstraint(Sketcher.Constraint("Horizontal", 2, 2, 9, 2))
sketch2.addConstraint(Sketcher.Constraint("Horizontal", 7, 2, 12, 2))
sketch2.addConstraint(Sketcher.Constraint("Horizontal", 6, 2, 13, 2))
sketch2.addConstraint(Sketcher.Constraint("Horizontal", 14, 2, 16, 2))
sketch2.addConstraint(Sketcher.Constraint("Horizontal", 15, 2, 17, 2))
sketch2.addConstraint(Sketcher.Constraint("Horizontal", 10, 2, 20, 2))
sketch2.addConstraint(Sketcher.Constraint("Horizontal", 11, 2, 21, 2))
sketch2.addConstraint(Sketcher.Constraint("Horizontal", 19, 2, 24, 2))
sketch2.addConstraint(Sketcher.Constraint("Horizontal", 18, 2, 25, 2))
sketch2.addConstraint(Sketcher.Constraint("Horizontal", 23, 2, 28, 2))
sketch2.addConstraint(Sketcher.Constraint("Horizontal", 22, 2, 29, 2))
sketch2.addConstraint(Sketcher.Constraint("Vertical", 1, 2, 4, 2))
sketch2.addConstraint(Sketcher.Constraint("Vertical", 3, 2, 6, 2))
sketch2.addConstraint(Sketcher.Constraint("Vertical", 9, 2, 12, 2))
sketch2.addConstraint(Sketcher.Constraint("Vertical", 11, 2, 14, 2))
sketch2.addConstraint(Sketcher.Constraint("Vertical", 17, 2, 20, 2))
sketch2.addConstraint(Sketcher.Constraint("Vertical", 19, 2, 22, 2))
sketch2.addConstraint(Sketcher.Constraint("Vertical", 25, 2, 28, 2))
sketch2.addConstraint(Sketcher.Constraint("Vertical", 27, 2, 30, 2))
sketch2.addConstraint(Sketcher.Constraint("Equal", 6, 8))
sketch2.addConstraint(Sketcher.Constraint("Equal", 14, 16))
sketch2.addConstraint(Sketcher.Constraint("Equal", 22, 24))
sketch2.addConstraint(Sketcher.Constraint("Equal", 3, 5))
sketch2.addConstraint(Sketcher.Constraint("DistanceX", 0, 2, 0, 1, 3.0))
sketch2.addConstraint(Sketcher.Constraint("DistanceY", 1, 1, 1, 2, 10.0))
sketch2.addConstraint(Sketcher.Constraint("DistanceX", 16, 2, -1, 1, 10.0))
sketch2.addConstraint(Sketcher.Constraint("DistanceX", 3, 2, 8, 2, 2.5))
sketch2.addConstraint(Sketcher.Constraint("DistanceX", 24, 2, 19, 2, 2.5))
sketch2.addConstraint(Sketcher.Constraint("DistanceX", 0, 2, -1, 1, 130.0))
sketch2.addConstraint(Sketcher.Constraint("DistanceY", 0, 2, -1, 1, 95.0))
sketch2.addConstraint(Sketcher.Constraint("DistanceY", 4, 2, -1, 1, 35.0))
pad2 = body.newObject("PartDesign::Pad", "Pad001")
pad2.Profile = sketch2
pad2.Length = 5
pad2.Reversed = True

# Sketch on YZ plane
sketch3 = body.newObject("Sketcher::SketchObject", "Sketch002")
sketch3.AttachmentSupport = (doc.getObject("YZ_Plane"), [""])
sketch3.MapMode = "FlatFace"
sketch3.AttachmentOffset = App.Placement(Vector(0, 0, -10), App.Rotation())
sketch3.addGeometry(Part.Circle(Vector(4.5, -32.5, 0), Vector(0, 0, 1), 1), False)
sketch3.addGeometry(Part.Circle(Vector(4.5, -27.5, 0), Vector(0, 0, 1), 1), False)
sketch3.addGeometry(Part.Circle(Vector(4.5, -92.5, 0), Vector(0, 0, 1), 1), False)
sketch3.addGeometry(Part.Circle(Vector(4.5, -87.5, 0), Vector(0, 0, 1), 1), False)
sketch3.addConstraint(Sketcher.Constraint("Equal", 0, 1))
sketch3.addConstraint(Sketcher.Constraint("Equal", 1, 2))
sketch3.addConstraint(Sketcher.Constraint("Equal", 2, 3))
sketch3.addConstraint(Sketcher.Constraint("Vertical", 0, 3, 1, 3))
sketch3.addConstraint(Sketcher.Constraint("Vertical", 1, 3, 2, 3))
sketch3.addConstraint(Sketcher.Constraint("Vertical", 2, 3, 3, 3))
sketch3.addConstraint(Sketcher.Constraint("Diameter", 0, 2.0))
sketch3.addConstraint(Sketcher.Constraint("DistanceY", 0, 3, 1, 3, 5.0))
sketch3.addConstraint(Sketcher.Constraint("DistanceY", 2, 3, 3, 3, 5.0))
sketch3.addConstraint(Sketcher.Constraint("DistanceY", 2, 3, 0, 3, 60.0))
sketch3.addConstraint(Sketcher.Constraint("DistanceX", -1, 1, 0, 3, 4.5))
sketch3.addConstraint(Sketcher.Constraint("DistanceY", 0, 3, -1, 1, 32.5))
pocket1 = body.newObject("PartDesign::Pocket", "Pocket")
pocket1.Profile = sketch3
pocket1.Length = 120

# Sketch on XZ plane
sketch4 = body.newObject("Sketcher::SketchObject", "Sketch003")
sketch4.AttachmentSupport = (doc.getObject("XZ_Plane"), [""])
sketch4.MapMode = "FlatFace"
sketch4.AttachmentOffset = App.Placement(Vector(0, 0, -2), App.Rotation())
sketch4.addGeometry(Part.Circle(Vector(-35, -92.5, 0), Vector(0, 0, 1), 1), False)
sketch4.addGeometry(Part.Circle(Vector(-35, -27.5, 0), Vector(0, 0, 1), 1), False)
sketch4.addGeometry(Part.Circle(Vector(-105, -92.5, 0), Vector(0, 0, 1), 1), False)
sketch4.addGeometry(Part.Circle(Vector(-105, -27.5, 0), Vector(0, 0, 1), 1), False)
sketch4.addConstraint(Sketcher.Constraint("Equal", 0, 1))
sketch4.addConstraint(Sketcher.Constraint("Equal", 1, 2))
sketch4.addConstraint(Sketcher.Constraint("Equal", 2, 3))
sketch4.addConstraint(Sketcher.Constraint("Horizontal", 0, 3, 2, 3))
sketch4.addConstraint(Sketcher.Constraint("Horizontal", 1, 3, 3, 3))
sketch4.addConstraint(Sketcher.Constraint("Vertical", 0, 3, 1, 3))
sketch4.addConstraint(Sketcher.Constraint("Vertical", 2, 3, 3, 3))
sketch4.addConstraint(Sketcher.Constraint("Diameter", 0, 2.0))
sketch4.addConstraint(Sketcher.Constraint("DistanceX", 0, 3, -1, 1, 35.0))
sketch4.addConstraint(Sketcher.Constraint("DistanceY", 1, 3, -1, 1, 27.5))
sketch4.addConstraint(Sketcher.Constraint("DistanceX", 2, 3, -1, 1, 105.0))
sketch4.addConstraint(Sketcher.Constraint("DistanceY", 0, 3, 1, 3, 65.0))
pocket2 = body.newObject("PartDesign::Pocket", "Pocket001")
pocket2.Profile = sketch4
pocket2.Length = 10
pocket2.Reversed = True

doc.recompute()
